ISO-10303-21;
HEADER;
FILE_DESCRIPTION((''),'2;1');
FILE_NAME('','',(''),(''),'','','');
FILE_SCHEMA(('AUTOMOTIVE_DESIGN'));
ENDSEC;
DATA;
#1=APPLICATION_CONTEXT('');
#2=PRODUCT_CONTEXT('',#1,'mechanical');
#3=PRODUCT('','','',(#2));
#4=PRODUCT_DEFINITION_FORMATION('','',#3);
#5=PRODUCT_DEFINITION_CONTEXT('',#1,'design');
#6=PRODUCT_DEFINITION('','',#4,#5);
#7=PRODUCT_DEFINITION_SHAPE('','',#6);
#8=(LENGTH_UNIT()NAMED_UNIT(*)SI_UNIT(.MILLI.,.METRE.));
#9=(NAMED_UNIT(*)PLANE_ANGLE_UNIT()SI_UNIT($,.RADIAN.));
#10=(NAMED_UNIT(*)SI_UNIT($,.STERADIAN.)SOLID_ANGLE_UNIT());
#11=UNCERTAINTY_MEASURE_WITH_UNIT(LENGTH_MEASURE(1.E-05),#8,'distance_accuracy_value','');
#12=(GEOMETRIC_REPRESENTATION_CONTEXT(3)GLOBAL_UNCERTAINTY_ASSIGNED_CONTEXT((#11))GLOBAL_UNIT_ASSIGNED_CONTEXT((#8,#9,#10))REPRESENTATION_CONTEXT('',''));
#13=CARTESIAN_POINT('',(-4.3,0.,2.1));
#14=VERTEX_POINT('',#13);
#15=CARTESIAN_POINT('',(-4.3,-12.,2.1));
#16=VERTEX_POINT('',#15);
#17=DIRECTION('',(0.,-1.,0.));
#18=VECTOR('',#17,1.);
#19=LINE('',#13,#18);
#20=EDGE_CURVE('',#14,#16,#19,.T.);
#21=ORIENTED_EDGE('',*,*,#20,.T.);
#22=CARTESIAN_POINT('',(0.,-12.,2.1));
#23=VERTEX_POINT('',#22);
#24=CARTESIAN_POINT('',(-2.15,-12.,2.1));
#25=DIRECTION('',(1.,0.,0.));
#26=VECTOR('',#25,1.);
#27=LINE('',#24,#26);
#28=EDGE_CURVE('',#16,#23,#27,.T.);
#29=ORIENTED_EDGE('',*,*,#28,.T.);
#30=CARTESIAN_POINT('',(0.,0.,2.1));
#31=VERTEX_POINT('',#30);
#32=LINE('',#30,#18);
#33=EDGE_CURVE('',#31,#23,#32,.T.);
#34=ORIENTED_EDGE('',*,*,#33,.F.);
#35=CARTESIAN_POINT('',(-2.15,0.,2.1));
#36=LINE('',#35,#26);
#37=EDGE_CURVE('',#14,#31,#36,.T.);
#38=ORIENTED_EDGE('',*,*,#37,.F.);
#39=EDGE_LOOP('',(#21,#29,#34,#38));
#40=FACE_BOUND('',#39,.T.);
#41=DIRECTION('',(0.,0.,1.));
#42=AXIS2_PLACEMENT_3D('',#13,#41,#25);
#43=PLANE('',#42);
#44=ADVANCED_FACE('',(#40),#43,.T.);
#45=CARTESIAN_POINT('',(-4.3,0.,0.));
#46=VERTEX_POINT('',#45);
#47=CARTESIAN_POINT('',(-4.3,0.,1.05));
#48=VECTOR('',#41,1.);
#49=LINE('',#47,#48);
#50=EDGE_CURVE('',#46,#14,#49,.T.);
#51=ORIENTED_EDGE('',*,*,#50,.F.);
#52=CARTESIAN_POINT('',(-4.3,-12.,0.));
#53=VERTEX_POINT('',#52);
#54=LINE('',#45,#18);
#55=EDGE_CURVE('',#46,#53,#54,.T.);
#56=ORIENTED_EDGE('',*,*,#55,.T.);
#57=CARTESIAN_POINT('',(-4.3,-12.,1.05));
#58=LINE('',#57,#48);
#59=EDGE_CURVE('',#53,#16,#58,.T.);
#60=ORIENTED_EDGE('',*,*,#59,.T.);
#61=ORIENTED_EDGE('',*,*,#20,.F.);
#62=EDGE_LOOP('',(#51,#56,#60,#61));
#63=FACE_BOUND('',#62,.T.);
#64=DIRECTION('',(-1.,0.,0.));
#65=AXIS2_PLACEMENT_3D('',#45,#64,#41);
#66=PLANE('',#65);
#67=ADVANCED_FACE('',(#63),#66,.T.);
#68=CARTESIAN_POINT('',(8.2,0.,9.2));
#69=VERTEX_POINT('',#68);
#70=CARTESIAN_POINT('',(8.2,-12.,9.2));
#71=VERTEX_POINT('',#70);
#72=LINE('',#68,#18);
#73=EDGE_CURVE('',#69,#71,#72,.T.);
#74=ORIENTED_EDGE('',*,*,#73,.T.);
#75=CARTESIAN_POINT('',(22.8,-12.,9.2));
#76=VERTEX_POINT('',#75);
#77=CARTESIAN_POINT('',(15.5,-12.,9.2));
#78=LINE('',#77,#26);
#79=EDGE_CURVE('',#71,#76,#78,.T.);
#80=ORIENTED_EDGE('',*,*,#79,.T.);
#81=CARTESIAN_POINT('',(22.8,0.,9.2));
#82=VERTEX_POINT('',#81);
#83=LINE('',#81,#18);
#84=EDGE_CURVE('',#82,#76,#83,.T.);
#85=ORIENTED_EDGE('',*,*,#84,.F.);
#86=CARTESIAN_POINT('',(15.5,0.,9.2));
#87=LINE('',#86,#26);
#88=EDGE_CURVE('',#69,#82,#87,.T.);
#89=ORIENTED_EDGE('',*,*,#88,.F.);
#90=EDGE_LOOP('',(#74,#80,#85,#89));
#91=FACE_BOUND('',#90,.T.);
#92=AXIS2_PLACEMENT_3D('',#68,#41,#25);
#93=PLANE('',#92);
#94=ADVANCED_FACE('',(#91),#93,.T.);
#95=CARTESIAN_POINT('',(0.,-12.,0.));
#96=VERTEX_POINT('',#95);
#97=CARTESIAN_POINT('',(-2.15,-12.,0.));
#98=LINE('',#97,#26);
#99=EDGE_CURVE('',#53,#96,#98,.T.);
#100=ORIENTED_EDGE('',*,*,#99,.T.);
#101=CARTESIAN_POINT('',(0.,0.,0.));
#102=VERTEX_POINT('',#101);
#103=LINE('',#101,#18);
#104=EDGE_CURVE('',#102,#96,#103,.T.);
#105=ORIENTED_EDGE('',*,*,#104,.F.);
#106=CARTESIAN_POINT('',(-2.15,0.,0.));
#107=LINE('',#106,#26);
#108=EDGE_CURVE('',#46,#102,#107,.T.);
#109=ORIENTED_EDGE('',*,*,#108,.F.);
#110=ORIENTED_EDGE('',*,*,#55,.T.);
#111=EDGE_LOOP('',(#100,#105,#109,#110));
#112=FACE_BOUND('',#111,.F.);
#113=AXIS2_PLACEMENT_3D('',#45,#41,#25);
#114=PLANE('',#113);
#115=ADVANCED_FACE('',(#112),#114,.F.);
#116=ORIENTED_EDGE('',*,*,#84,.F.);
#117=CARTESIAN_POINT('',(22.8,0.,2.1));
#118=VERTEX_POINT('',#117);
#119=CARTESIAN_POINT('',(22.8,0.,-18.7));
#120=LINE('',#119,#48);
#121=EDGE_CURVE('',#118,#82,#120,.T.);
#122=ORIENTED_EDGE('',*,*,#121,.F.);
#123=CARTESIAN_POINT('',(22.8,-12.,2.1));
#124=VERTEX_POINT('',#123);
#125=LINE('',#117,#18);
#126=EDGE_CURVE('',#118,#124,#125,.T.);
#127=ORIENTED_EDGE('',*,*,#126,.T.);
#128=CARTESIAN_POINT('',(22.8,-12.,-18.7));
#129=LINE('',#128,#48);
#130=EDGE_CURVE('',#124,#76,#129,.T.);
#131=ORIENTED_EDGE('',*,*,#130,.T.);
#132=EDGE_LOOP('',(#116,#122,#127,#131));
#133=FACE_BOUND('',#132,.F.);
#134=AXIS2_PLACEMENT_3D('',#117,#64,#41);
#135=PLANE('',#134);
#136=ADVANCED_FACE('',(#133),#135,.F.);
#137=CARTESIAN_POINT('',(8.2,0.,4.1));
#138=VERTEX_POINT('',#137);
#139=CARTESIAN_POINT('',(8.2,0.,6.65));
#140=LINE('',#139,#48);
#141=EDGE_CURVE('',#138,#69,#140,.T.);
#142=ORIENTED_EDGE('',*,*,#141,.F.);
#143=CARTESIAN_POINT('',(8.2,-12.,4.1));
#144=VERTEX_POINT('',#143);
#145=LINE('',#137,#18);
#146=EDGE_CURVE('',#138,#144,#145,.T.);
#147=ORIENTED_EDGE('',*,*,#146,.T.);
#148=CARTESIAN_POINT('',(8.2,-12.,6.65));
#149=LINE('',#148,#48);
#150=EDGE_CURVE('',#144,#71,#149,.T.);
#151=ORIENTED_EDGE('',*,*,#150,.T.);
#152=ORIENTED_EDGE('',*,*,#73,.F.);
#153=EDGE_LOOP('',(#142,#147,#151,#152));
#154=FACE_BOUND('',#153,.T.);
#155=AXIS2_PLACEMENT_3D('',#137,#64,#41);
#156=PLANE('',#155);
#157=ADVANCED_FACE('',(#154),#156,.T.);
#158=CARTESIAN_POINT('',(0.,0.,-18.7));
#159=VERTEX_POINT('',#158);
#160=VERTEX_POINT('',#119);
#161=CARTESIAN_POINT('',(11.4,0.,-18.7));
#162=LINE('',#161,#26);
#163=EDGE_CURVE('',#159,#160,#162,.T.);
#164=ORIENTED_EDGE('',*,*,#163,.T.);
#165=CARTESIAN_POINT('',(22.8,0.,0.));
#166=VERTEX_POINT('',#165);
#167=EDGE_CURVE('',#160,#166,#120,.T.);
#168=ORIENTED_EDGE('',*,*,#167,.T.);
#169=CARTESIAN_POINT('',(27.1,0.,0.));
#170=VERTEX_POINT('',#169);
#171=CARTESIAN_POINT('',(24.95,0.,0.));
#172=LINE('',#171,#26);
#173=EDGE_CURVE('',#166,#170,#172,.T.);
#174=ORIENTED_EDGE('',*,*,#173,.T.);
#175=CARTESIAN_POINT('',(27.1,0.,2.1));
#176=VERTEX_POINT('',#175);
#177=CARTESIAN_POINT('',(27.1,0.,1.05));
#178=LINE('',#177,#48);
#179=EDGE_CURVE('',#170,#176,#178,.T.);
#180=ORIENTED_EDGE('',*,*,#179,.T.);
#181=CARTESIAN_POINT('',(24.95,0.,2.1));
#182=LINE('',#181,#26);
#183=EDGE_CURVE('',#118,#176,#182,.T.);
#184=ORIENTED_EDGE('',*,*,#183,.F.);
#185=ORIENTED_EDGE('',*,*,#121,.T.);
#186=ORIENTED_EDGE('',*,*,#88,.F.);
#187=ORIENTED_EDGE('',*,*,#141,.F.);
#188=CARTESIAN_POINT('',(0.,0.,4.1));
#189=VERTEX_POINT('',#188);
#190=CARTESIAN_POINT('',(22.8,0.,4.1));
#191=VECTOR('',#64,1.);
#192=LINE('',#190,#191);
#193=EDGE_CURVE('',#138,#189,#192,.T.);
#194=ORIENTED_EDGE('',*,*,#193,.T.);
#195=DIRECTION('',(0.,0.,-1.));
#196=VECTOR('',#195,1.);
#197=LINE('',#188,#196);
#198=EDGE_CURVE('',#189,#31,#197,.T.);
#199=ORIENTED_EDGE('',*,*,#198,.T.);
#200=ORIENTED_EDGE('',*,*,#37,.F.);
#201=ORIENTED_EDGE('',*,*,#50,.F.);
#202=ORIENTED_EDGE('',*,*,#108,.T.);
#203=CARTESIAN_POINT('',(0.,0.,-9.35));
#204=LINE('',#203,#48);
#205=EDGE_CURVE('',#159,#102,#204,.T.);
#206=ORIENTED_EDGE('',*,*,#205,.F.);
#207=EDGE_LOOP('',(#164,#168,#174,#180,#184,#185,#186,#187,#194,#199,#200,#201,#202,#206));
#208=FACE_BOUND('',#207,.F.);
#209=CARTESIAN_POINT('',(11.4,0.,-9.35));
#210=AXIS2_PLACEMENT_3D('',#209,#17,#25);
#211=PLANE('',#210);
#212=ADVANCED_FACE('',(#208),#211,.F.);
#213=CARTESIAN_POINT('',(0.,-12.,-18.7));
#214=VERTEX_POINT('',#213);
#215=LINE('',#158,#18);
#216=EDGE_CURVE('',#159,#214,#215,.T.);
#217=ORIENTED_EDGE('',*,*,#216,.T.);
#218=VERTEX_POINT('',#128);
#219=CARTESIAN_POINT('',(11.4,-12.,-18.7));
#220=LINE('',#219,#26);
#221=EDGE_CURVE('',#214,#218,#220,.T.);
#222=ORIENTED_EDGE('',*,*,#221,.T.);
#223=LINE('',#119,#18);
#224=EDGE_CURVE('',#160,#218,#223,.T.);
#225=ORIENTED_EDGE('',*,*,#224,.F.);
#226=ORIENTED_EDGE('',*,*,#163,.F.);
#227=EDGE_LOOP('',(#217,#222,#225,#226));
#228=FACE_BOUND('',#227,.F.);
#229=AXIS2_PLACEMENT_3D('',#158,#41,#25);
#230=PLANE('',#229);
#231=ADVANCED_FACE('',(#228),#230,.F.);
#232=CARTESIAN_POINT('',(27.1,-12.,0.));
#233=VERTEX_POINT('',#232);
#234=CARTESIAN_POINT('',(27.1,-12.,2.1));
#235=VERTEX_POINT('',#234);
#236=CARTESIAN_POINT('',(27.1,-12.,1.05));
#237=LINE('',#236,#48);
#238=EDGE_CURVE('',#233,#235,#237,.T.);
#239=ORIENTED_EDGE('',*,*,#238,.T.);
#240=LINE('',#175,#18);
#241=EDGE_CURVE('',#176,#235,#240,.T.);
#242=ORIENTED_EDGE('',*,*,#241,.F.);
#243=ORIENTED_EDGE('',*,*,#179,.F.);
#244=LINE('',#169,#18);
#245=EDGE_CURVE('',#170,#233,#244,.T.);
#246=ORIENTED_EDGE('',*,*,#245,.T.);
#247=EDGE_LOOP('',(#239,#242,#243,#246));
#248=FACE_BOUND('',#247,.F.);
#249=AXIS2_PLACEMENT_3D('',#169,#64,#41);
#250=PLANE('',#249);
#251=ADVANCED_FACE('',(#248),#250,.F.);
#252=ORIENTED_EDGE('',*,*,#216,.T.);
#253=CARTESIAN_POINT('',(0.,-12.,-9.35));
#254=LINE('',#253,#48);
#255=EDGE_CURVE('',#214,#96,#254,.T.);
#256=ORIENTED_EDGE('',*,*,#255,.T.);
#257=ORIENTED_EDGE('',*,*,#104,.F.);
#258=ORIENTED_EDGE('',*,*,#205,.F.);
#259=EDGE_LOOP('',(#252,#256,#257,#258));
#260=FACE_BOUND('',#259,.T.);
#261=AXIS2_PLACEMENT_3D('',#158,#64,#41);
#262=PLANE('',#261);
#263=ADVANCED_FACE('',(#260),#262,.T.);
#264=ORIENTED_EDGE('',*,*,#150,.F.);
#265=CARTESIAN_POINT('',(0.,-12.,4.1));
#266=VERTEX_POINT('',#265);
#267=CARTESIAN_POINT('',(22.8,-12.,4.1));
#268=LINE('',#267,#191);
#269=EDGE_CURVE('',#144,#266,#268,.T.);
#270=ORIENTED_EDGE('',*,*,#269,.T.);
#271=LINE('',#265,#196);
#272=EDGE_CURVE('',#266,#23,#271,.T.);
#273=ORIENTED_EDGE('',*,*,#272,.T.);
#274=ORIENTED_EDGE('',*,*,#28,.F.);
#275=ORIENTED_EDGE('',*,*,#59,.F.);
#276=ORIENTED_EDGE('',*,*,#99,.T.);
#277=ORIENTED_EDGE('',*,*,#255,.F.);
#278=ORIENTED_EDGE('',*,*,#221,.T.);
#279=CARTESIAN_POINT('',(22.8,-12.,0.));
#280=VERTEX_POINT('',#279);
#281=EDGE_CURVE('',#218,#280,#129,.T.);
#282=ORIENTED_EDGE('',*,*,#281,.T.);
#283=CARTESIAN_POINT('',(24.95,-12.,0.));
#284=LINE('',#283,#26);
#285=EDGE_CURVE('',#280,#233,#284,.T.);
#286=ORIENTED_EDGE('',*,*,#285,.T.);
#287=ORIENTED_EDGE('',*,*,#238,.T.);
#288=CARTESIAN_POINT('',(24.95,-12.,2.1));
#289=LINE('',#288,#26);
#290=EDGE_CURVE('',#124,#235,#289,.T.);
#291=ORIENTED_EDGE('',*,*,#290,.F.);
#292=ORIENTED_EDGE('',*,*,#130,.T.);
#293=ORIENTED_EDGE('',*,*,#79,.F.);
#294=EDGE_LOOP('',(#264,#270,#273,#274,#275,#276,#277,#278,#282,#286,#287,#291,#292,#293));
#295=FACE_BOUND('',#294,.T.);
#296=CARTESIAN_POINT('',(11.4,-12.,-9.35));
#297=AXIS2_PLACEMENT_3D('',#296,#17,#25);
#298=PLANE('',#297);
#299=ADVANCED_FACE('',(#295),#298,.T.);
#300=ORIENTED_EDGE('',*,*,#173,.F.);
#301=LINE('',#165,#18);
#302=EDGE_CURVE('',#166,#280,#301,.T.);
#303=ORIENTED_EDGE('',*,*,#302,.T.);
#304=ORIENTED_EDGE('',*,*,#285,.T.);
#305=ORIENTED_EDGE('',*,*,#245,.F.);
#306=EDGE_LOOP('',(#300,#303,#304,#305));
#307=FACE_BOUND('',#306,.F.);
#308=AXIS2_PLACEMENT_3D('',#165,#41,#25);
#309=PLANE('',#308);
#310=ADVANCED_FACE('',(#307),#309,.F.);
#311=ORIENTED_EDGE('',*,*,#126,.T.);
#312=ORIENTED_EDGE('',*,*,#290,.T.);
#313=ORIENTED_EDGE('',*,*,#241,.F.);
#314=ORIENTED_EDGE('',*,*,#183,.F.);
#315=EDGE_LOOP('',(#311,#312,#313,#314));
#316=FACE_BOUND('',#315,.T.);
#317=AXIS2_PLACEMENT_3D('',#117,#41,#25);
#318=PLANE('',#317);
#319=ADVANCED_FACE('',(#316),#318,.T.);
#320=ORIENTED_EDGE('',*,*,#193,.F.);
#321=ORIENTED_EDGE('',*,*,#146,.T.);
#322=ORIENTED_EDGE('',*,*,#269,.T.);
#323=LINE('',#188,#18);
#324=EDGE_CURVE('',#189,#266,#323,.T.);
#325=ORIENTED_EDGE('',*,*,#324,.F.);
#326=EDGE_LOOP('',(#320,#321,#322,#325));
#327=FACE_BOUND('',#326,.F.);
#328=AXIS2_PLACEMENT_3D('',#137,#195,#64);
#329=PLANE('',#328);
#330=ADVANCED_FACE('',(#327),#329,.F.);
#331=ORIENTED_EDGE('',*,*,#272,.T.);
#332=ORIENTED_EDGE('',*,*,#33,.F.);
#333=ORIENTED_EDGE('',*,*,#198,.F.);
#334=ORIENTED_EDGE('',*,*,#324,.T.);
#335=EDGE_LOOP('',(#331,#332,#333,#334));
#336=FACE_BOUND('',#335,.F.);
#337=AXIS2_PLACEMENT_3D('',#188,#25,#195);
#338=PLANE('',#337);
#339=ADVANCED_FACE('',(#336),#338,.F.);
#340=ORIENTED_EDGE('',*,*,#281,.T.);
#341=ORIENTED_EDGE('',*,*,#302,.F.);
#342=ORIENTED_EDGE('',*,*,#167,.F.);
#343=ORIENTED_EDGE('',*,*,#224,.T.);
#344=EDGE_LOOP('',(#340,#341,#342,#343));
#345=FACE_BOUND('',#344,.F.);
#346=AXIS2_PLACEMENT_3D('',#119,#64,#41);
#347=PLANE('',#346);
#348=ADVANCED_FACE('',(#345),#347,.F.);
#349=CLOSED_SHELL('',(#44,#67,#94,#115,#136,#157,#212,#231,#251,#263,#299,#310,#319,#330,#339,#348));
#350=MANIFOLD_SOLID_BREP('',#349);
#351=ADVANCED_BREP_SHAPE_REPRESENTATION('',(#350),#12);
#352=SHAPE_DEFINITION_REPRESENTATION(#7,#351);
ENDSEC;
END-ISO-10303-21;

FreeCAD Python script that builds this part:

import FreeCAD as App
import Part
import Sketcher

V = App.Vector


def add_polygon(sketch, points):
    """Adds a closed chain of lines whose ends are joined by coincident constraints."""
    first, n = sketch.GeometryCount, len(points)
    for a, b in zip(points, points[1:] + points[:1]):
        sketch.addGeometry(Part.LineSegment(App.Vector(*a, 0), App.Vector(*b, 0)), False)
    for i in range(n):
        sketch.addConstraint(Sketcher.Constraint("Coincident", first + i, 2, first + (i + 1) % n, 1))

doc = App.newDocument("Part")
body = doc.addObject("PartDesign::Body", "Body")

# Sketch on XZ plane
sketch1 = body.newObject("Sketcher::SketchObject", "Sketch")
sketch1.AttachmentSupport = (doc.getObject("XZ_Plane"), [""])
sketch1.MapMode = "FlatFace"
add_polygon(sketch1, [(0, 0), (0, -18.7), (22.8, -18.7), (22.8, 0), (27.1, 0), (27.1, 2.1), (22.8, 2.1), (22.8, 9.2), (8.2, 9.2), (8.2, 4.1), (0, 4.1), (0, 2.1), (-4.3, 2.1), (-4.3, 0)])  # lines 0-13
sketch1.addConstraint([
    Sketcher.Constraint("Vertical", 0),
    Sketcher.Constraint("Horizontal", 1),
    Sketcher.Constraint("Vertical", 2),
    Sketcher.Constraint("Horizontal", 3),
    Sketcher.Constraint("Vertical", 4),
    Sketcher.Constraint("Horizontal", 5),
    Sketcher.Constraint("Vertical", 6),
    Sketcher.Constraint("Horizontal", 7),
    Sketcher.Constraint("Vertical", 8),
    Sketcher.Constraint("Horizontal", 9),
    Sketcher.Constraint("Vertical", 10),
    Sketcher.Constraint("Horizontal", 11),
    Sketcher.Constraint("Vertical", 12),
    Sketcher.Constraint("Horizontal", 13),
    Sketcher.Constraint("Coincident", 13, 2, -1, 1),
    Sketcher.Constraint("PointOnObject", 2, 2, -1),
    Sketcher.Constraint("PointOnObject", 9, 2, -2),
    Sketcher.Constraint("Horizontal", 5, 2, 10, 2),
    Sketcher.Constraint("Vertical", 2, 2, 5, 2),
    Sketcher.Constraint("Equal", 5, 11),
    Sketcher.Constraint("DistanceY", 10, 2, 10, 1, 2.0),
    Sketcher.Constraint("DistanceX", 1, 1, 1, 2, 22.8),
    Sketcher.Constraint("DistanceX", 3, 1, 3, 2, 4.3),
    Sketcher.Constraint("DistanceX", 7, 2, 7, 1, 14.6),
    Sketcher.Constraint("DistanceY", 0, 2, 0, 1, 18.7),
    Sketcher.Constraint("DistanceY", 4, 1, 4, 2, 2.1),
    Sketcher.Constraint("DistanceY", 6, 1, 6, 2, 7.1),
])
pad1 = body.newObject("PartDesign::Pad", "Pad")
pad1.Profile = sketch1
pad1.Length = 12

doc.recompute()
